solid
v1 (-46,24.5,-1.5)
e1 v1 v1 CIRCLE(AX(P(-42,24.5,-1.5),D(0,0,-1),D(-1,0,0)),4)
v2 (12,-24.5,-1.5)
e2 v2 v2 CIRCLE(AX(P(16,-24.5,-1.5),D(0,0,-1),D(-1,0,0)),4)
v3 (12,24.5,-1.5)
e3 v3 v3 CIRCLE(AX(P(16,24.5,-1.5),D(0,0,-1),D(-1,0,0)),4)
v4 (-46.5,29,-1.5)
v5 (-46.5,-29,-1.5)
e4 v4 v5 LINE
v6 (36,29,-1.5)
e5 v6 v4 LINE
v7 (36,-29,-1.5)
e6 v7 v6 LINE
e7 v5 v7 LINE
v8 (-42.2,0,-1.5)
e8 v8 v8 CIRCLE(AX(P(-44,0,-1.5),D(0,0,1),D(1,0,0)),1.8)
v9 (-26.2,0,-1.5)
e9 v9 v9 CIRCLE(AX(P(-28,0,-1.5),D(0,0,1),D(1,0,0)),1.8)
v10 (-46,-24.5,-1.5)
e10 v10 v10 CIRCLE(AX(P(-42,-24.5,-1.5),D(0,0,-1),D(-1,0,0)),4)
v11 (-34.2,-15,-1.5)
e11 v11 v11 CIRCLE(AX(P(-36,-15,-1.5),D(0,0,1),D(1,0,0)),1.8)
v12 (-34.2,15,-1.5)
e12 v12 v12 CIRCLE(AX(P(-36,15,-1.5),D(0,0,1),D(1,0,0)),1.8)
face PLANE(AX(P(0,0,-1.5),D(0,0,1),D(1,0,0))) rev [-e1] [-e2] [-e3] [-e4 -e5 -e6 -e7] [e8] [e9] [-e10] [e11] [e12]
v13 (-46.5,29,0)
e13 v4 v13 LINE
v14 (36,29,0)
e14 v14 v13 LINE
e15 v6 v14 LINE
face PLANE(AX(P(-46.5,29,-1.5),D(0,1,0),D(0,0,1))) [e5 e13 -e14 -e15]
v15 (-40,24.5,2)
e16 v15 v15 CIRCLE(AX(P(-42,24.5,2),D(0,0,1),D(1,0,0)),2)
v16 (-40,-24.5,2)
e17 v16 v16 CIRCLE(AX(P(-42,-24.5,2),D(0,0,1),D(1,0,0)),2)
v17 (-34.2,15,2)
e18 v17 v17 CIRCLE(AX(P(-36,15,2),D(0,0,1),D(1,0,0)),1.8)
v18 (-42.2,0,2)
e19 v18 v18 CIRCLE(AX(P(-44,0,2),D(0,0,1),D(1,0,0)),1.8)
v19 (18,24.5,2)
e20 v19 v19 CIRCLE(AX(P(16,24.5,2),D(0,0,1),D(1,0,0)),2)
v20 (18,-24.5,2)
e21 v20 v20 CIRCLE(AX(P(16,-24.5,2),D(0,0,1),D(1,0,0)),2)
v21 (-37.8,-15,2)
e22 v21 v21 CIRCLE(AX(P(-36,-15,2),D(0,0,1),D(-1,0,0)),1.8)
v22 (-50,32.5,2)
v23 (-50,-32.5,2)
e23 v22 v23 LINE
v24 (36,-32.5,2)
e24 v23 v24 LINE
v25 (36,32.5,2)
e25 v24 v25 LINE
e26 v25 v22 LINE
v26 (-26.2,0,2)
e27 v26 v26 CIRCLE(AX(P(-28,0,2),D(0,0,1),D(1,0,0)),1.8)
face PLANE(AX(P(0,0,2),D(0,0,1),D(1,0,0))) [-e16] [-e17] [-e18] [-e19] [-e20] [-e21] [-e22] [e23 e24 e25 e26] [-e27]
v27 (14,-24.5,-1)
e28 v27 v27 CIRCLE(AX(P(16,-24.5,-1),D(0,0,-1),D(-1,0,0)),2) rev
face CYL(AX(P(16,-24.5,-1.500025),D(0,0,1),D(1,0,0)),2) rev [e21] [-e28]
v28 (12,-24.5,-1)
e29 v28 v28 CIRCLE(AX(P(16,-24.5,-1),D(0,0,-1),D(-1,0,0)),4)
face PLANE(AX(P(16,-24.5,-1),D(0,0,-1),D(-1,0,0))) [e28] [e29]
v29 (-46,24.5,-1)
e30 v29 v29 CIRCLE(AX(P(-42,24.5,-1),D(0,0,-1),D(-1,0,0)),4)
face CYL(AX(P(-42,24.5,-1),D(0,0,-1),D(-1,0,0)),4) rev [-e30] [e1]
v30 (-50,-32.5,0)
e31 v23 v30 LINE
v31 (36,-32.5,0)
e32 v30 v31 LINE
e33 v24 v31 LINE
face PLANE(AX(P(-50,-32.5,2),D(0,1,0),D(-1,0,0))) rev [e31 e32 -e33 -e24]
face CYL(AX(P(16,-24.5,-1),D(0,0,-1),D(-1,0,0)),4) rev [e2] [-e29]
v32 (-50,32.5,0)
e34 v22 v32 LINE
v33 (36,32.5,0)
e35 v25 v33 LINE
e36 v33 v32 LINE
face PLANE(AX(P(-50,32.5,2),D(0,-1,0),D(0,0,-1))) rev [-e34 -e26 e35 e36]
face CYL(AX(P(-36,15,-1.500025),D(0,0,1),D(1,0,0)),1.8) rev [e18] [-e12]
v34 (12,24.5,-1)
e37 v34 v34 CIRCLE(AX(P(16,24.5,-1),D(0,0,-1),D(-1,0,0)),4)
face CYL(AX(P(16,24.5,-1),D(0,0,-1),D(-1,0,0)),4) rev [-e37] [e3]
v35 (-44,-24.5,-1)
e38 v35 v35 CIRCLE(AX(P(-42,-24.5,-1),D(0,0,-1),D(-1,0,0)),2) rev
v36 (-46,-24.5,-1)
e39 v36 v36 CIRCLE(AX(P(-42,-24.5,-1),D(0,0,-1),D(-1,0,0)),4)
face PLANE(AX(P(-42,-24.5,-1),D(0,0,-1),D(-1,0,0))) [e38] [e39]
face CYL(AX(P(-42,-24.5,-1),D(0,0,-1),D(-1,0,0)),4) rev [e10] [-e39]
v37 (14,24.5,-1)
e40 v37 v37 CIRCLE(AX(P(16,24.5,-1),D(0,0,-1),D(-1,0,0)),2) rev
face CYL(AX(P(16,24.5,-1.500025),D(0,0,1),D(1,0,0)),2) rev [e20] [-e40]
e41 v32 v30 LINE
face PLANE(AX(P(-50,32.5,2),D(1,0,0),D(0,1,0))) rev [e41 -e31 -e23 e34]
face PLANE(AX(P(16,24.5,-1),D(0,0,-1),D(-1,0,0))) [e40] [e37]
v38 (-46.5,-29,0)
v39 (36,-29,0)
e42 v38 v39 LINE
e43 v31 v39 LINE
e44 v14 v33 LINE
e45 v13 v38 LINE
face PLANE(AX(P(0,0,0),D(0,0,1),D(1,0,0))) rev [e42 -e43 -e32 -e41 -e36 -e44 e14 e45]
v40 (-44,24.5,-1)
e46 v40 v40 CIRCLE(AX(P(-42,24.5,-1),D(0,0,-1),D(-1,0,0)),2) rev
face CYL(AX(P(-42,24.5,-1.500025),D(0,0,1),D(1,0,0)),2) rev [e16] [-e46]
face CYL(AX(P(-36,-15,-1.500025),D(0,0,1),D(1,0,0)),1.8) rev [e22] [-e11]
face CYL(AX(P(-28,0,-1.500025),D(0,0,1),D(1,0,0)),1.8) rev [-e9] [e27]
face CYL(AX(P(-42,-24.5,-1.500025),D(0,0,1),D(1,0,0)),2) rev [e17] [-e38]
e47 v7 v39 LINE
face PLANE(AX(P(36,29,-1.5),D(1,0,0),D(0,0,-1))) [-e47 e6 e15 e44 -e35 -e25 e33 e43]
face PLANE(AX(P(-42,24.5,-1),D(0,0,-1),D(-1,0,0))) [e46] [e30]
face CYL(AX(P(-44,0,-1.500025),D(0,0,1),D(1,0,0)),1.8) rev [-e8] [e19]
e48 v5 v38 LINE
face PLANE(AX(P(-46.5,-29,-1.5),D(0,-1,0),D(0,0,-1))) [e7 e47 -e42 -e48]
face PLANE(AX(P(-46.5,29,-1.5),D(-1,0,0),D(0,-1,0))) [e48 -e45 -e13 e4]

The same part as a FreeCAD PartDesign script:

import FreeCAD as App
import Part
import Sketcher

V = App.Vector


def add_polygon(sketch, points):
    """Adds a closed chain of lines whose ends are joined by coincident constraints."""
    first, n = sketch.GeometryCount, len(points)
    for a, b in zip(points, points[1:] + points[:1]):
        sketch.addGeometry(Part.LineSegment(App.Vector(*a, 0), App.Vector(*b, 0)), False)
    for i in range(n):
        sketch.addConstraint(Sketcher.Constraint("Coincident", first + i, 2, first + (i + 1) % n, 1))

doc = App.newDocument("Part")
body = doc.addObject("PartDesign::Body", "Body")

# Sketch on XY plane
sketch1 = body.newObject("Sketcher::SketchObject", "Sketch")
sketch1.AttachmentSupport = (doc.getObject("XY_Plane"), [""])
sketch1.MapMode = "FlatFace"
add_polygon(sketch1, [(-46, 29), (-46, -29), (36, -29), (36, 29)])  # lines 0-3
sketch1.addConstraint(Sketcher.Constraint("Vertical", 0))
sketch1.addConstraint(Sketcher.Constraint("Horizontal", 1))
sketch1.addConstraint(Sketcher.Constraint("Vertical", 2))
sketch1.addConstraint(Sketcher.Constraint("Horizontal", 3))
sketch1.addConstraint(Sketcher.Constraint("DistanceY", 0, 2, 0, 1, 58.0))
sketch1.addConstraint(Sketcher.Constraint("DistanceX", 1, 1, 1, 2, 82.5))
sketch1.addConstraint(Sketcher.Constraint("DistanceY", 0, 2, -1, 1, 29.0))
sketch1.addConstraint(Sketcher.Constraint("DistanceX", -1, 1, 1, 2, 36.0))
pad1 = body.newObject("PartDesign::Pad", "Pad")
pad1.Profile = sketch1
pad1.Length = 1.5
pad1.Reversed = True

# Sketch on XY plane
sketch2 = body.newObject("Sketcher::SketchObject", "Sketch001")
sketch2.AttachmentSupport = (doc.getObject("XY_Plane"), [""])
sketch2.MapMode = "FlatFace"
add_polygon(sketch2, [(-50, 32), (-50, -32), (36, -32), (36, 32)])  # lines 0-3
sketch2.addConstraint(Sketcher.Constraint("Vertical", 0))
sketch2.addConstraint(Sketcher.Constraint("Horizontal", 1))
sketch2.addConstraint(Sketcher.Constraint("Vertical", 2))
sketch2.addConstraint(Sketcher.Constraint("Horizontal", 3))
sketch2.addConstraint(Sketcher.Constraint("DistanceX", 1, 1, 1, 2, 86.0))
sketch2.addConstraint(Sketcher.Constraint("DistanceY", 0, 2, 0, 1, 65.0))
sketch2.addConstraint(Sketcher.Constraint("DistanceX", 0, 2, -1, 1, 50.0))
sketch2.addConstraint(Sketcher.Constraint("DistanceY", 0, 2, -1, 1, 32.5))
pad2 = body.newObject("PartDesign::Pad", "Pad001")
pad2.Profile = sketch2
pad2.Length = 2

# Sketch on XY plane
sketch3 = body.newObject("Sketcher::SketchObject", "Sketch002")
sketch3.AttachmentSupport = (doc.getObject("XY_Plane"), [""])
sketch3.MapMode = "FlatFace"
sketch3.AttachmentOffset = App.Placement(V(0, 0, 2), App.Rotation())
sketch3.addGeometry(Part.Circle(V(-42, 24.5, 0), V(0, 0, 1), 2), False)
sketch3.addGeometry(Part.Circle(V(16, 24.5, 0), V(0, 0, 1), 2), False)
sketch3.addGeometry(Part.Circle(V(16, -24.5, 0), V(0, 0, 1), 2), False)
sketch3.addGeometry(Part.Circle(V(-42, -24.5, 0), V(0, 0, 1), 2), False)
sketch3.addConstraint(Sketcher.Constraint("Equal", 0, 1))
sketch3.addConstraint(Sketcher.Constraint("Equal", 1, 2))
sketch3.addConstraint(Sketcher.Constraint("Equal", 2, 3))
sketch3.addConstraint(Sketcher.Constraint("Symmetric", 1, 3, 2, 3, -1))
sketch3.addConstraint(Sketcher.Constraint("Symmetric", 0, 3, 3, 3, -1))
sketch3.addConstraint(Sketcher.Constraint("Horizontal", 0, 3, 1, 3))
sketch3.addConstraint(Sketcher.Constraint("Diameter", 0, 4.0))
sketch3.addConstraint(Sketcher.Constraint("DistanceX", 0, 3, -1, 1, 42.0))
sketch3.addConstraint(Sketcher.Constraint("DistanceX", -1, 1, 1, 3, 16.0))
sketch3.addConstraint(Sketcher.Constraint("DistanceY", 2, 3, 1, 3, 49.0))
pocket1 = body.newObject("PartDesign::Pocket", "Pocket")
pocket1.Profile = sketch3
pocket1.Type = "ThroughAll"

# Sketch on XY plane
sketch4 = body.newObject("Sketcher::SketchObject", "Sketch003")
sketch4.AttachmentSupport = (doc.getObject("XY_Plane"), [""])
sketch4.MapMode = "FlatFace"
sketch4.AttachmentOffset = App.Placement(V(0, 0, 2), App.Rotation())
sketch4.addGeometry(Part.Circle(V(-44, 0, 0), V(0, 0, 1), 1.8), False)
sketch4.addGeometry(Part.Circle(V(-28, 0, 0), V(0, 0, 1), 1.8), False)
sketch4.addGeometry(Part.Circle(V(-36, 15, 0), V(0, 0, 1), 1.8), False)
sketch4.addGeometry(Part.Circle(V(-36, -15, 0), V(0, 0, 1), 1.8), False)
sketch4.addConstraint(Sketcher.Constraint("Equal", 0, 1))
sketch4.addConstraint(Sketcher.Constraint("Equal", 1, 2))
sketch4.addConstraint(Sketcher.Constraint("Equal", 2, 3))
sketch4.addConstraint(Sketcher.Constraint("Symmetric", 2, 3, 3, 3, -1))
sketch4.addConstraint(Sketcher.Constraint("PointOnObject", 0, 3, -1))
sketch4.addConstraint(Sketcher.Constraint("PointOnObject", 1, 3, -1))
sketch4.addConstraint(Sketcher.Constraint("Diameter", 0, 3.6))
sketch4.addConstraint(Sketcher.Constraint("DistanceX", 0, 3, -1, 1, 44.0))
sketch4.addConstraint(Sketcher.Constraint("DistanceX", 1, 3, -1, 1, 28.0))
sketch4.addConstraint(Sketcher.Constraint("DistanceX", 2, 3, -1, 1, 36.0))
sketch4.addConstraint(Sketcher.Constraint("DistanceY", -1, 1, 2, 3, 15.0))
pocket2 = body.newObject("PartDesign::Pocket", "Pocket001")
pocket2.Profile = sketch4
pocket2.Type = "ThroughAll"

# Sketch on XY plane
sketch5 = body.newObject("Sketcher::SketchObject", "Sketch004")
sketch5.AttachmentSupport = (doc.getObject("XY_Plane"), [""])
sketch5.MapMode = "FlatFace"
sketch5.AttachmentOffset = App.Placement(V(0, 0, -1.5), App.Rotation())
sketch5.addGeometry(Part.Circle(V(16, 24.5, 0), V(0, 0, 1), 4), False)
sketch5.addGeometry(Part.Circle(V(16, -24.5, 0), V(0, 0, 1), 4), False)
sketch5.addGeometry(Part.Circle(V(-42, -24.5, 0), V(0, 0, 1), 4), False)
sketch5.addGeometry(Part.Circle(V(-42, 24.5, 0), V(0, 0, 1), 4), False)
sketch5.addConstraint(Sketcher.Constraint("Equal", 0, 1))
sketch5.addConstraint(Sketcher.Constraint("Equal", 1, 2))
sketch5.addConstraint(Sketcher.Constraint("Equal", 2, 3))
sketch5.addConstraint(Sketcher.Constraint("Symmetric", 0, 3, 1, 3, -1))
sketch5.addConstraint(Sketcher.Constraint("Symmetric", 2, 3, 3, 3, -1))
sketch5.addConstraint(Sketcher.Constraint("Horizontal", 1, 3, 2, 3))
sketch5.addConstraint(Sketcher.Constraint("Diameter", 0, 8.0))
sketch5.addConstraint(Sketcher.Constraint("DistanceX", -1, 1, 0, 3, 16.0))
sketch5.addConstraint(Sketcher.Constraint("DistanceX", 2, 3, -1, 1, 42.0))
sketch5.addConstraint(Sketcher.Constraint("DistanceY", 1, 3, 0, 3, 49.0))
pocket3 = body.newObject("PartDesign::Pocket", "Pocket002")
pocket3.Profile = sketch5
pocket3.Length = 0.5
pocket3.Reversed = True

doc.recompute()
